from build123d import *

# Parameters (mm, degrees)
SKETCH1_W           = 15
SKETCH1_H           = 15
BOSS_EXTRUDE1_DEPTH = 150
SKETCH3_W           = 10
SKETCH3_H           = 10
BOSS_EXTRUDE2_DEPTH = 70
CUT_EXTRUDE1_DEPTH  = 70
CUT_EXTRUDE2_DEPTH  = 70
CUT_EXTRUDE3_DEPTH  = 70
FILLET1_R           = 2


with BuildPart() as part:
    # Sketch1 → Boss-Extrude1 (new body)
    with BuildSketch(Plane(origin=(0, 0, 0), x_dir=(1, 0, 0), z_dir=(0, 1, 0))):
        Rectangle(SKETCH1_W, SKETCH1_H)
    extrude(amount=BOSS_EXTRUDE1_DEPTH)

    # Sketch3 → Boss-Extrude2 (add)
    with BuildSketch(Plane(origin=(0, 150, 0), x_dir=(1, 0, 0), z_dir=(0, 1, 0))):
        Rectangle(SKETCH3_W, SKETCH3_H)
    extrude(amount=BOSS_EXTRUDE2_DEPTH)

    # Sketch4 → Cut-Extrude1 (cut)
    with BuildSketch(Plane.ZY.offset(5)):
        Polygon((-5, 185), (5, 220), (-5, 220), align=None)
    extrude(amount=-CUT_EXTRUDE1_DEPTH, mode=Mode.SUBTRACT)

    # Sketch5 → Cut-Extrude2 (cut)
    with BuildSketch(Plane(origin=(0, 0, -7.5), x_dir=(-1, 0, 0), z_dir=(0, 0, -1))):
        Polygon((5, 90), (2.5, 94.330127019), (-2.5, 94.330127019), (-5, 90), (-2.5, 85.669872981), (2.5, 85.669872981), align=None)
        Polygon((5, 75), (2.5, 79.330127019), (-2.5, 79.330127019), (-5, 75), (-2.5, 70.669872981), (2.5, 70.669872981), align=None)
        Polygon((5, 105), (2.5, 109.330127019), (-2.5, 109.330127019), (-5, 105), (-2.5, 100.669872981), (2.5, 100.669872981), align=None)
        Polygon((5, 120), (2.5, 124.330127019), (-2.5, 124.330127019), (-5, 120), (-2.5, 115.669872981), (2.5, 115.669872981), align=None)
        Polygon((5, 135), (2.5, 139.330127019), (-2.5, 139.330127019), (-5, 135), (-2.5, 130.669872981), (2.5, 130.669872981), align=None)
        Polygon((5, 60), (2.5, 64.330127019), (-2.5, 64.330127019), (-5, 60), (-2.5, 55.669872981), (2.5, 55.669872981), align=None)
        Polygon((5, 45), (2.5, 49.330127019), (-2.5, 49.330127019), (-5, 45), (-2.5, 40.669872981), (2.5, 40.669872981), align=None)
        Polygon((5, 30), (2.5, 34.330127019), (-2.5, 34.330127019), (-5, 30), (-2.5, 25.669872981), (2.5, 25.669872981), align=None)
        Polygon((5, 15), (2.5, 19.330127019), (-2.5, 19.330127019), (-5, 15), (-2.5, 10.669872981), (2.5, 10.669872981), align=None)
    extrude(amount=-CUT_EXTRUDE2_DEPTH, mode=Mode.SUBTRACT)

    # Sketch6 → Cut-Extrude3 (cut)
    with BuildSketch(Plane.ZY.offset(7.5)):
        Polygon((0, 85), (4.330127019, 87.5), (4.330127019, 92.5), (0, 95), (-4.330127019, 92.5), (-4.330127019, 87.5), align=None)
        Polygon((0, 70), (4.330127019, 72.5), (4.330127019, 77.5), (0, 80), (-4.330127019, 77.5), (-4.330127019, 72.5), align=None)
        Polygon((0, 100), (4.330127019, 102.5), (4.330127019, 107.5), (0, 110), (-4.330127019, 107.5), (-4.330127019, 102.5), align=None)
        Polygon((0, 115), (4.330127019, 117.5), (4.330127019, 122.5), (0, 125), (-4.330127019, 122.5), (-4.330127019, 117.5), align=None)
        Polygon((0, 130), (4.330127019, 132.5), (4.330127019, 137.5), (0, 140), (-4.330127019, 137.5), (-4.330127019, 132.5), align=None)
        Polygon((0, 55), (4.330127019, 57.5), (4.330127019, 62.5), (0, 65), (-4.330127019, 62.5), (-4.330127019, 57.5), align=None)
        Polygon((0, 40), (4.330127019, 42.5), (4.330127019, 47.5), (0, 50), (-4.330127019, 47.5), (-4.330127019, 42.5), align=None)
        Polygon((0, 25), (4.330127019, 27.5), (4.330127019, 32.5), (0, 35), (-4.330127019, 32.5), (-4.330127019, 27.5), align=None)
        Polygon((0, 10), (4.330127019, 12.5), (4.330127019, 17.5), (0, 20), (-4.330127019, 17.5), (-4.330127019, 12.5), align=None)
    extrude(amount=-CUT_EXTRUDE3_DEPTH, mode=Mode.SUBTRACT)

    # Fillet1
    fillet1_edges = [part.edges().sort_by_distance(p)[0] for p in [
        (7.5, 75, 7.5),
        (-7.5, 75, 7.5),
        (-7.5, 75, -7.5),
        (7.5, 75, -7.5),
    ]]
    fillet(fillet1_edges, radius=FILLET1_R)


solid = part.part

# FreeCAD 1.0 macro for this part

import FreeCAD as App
import Part
import Sketcher
from FreeCAD import Vector
Q = App.Units.Quantity


def edges_at(feature, points):
    """Names of the edges that pass closest to the given points."""
    edges = feature.Shape.Edges
    near = lambda p: min(range(len(edges)), key=lambda i: edges[i].distToShape(Part.Vertex(*p))[0])
    return sorted({f"Edge{near(p) + 1}" for p in points})

doc = App.newDocument("Part")
body = doc.addObject("PartDesign::Body", "Body")

# Sketch on XZ plane
sketch1 = body.newObject("Sketcher::SketchObject", "Sketch")
sketch1.AttachmentSupport = (doc.getObject("XZ_Plane"), [""])
sketch1.MapMode = "FlatFace"
sketch1.addGeometry([
    Part.LineSegment(Vector(-8, -8, 0), Vector(-8, 8, 0)),
    Part.LineSegment(Vector(-8, 8, 0), Vector(8, 8, 0)),
    Part.LineSegment(Vector(8, 8, 0), Vector(8, -8, 0)),
    Part.LineSegment(Vector(8, -8, 0), Vector(-8, -8, 0)),
], False)
sketch1.addConstraint([
    Sketcher.Constraint("Coincident", 0, 2, 1, 1),
    Sketcher.Constraint("Coincident", 1, 2, 2, 1),
    Sketcher.Constraint("Coincident", 2, 2, 3, 1),
    Sketcher.Constraint("Coincident", 3, 2, 0, 1),
    Sketcher.Constraint("Vertical", 0),
    Sketcher.Constraint("Horizontal", 1),
    Sketcher.Constraint("Vertical", 2),
    Sketcher.Constraint("Horizontal", 3),
    Sketcher.Constraint("Symmetric", 0, 2, 2, 2, -1, 1),
    Sketcher.Constraint("Equal", 3, 0),
    Sketcher.Constraint("DistanceX", 1, 1, 1, 2, Q("15 mm")),
])
pad1 = body.newObject("PartDesign::Pad", "Pad")
pad1.Profile = sketch1
pad1.Length = 150
pad1.Reversed = True

# Sketch on XZ plane
sketch2 = body.newObject("Sketcher::SketchObject", "Sketch001")
sketch2.AttachmentSupport = (doc.getObject("XZ_Plane"), [""])
sketch2.MapMode = "FlatFace"
sketch2.AttachmentOffset = App.Placement(Vector(0, 0, -150), App.Rotation())
sketch2.addGeometry([
    Part.LineSegment(Vector(-5, -5, 0), Vector(-5, 5, 0)),
    Part.LineSegment(Vector(-5, 5, 0), Vector(5, 5, 0)),
    Part.LineSegment(Vector(5, 5, 0), Vector(5, -5, 0)),
    Part.LineSegment(Vector(5, -5, 0), Vector(-5, -5, 0)),
], False)
sketch2.addConstraint([
    Sketcher.Constraint("Coincident", 0, 2, 1, 1),
    Sketcher.Constraint("Coincident", 1, 2, 2, 1),
    Sketcher.Constraint("Coincident", 2, 2, 3, 1),
    Sketcher.Constraint("Coincident", 3, 2, 0, 1),
    Sketcher.Constraint("Vertical", 0),
    Sketcher.Constraint("Horizontal", 1),
    Sketcher.Constraint("Vertical", 2),
    Sketcher.Constraint("Horizontal", 3),
    Sketcher.Constraint("Symmetric", 0, 2, 2, 2, -1, 1),
    Sketcher.Constraint("Equal", 3, 0),
    Sketcher.Constraint("DistanceX", 1, 1, 1, 2, Q("10 mm")),
])
pad2 = body.newObject("PartDesign::Pad", "Pad001")
pad2.Profile = sketch2
pad2.Length = 70
pad2.Reversed = True

# Sketch on YZ plane
sketch3 = body.newObject("Sketcher::SketchObject", "Sketch002")
sketch3.AttachmentSupport = (doc.getObject("YZ_Plane"), [""])
sketch3.MapMode = "FlatFace"
sketch3.AttachmentOffset = App.Placement(Vector(0, 0, -5), App.Rotation())
sketch3.addGeometry([
    Part.LineSegment(Vector(185, -5, 0), Vector(220, 5, 0)),
    Part.LineSegment(Vector(220, 5, 0), Vector(220, -5, 0)),
    Part.LineSegment(Vector(220, -5, 0), Vector(185, -5, 0)),
], False)
sketch3.addConstraint([
    Sketcher.Constraint("Coincident", 0, 2, 1, 1),
    Sketcher.Constraint("Coincident", 1, 2, 2, 1),
    Sketcher.Constraint("Coincident", 2, 2, 0, 1),
    Sketcher.Constraint("Vertical", 1),
    Sketcher.Constraint("Horizontal", 2),
    Sketcher.Constraint("DistanceX", 2, 2, 2, 1, Q("35 mm")),
    Sketcher.Constraint("DistanceY", 1, 2, 1, 1, Q("10 mm")),
    Sketcher.Constraint("DistanceX", -1, 1, 0, 2, Q("220 mm")),
    Sketcher.Constraint("DistanceY", -1, 1, 0, 2, Q("5 mm")),
])
pocket1 = body.newObject("PartDesign::Pocket", "Pocket")
pocket1.Profile = sketch3
pocket1.Length = 70
pocket1.Reversed = True

# Sketch on XY plane
sketch4 = body.newObject("Sketcher::SketchObject", "Sketch003")
sketch4.AttachmentSupport = (doc.getObject("XY_Plane"), [""])
sketch4.MapMode = "FlatFace"
sketch4.AttachmentOffset = App.Placement(Vector(0, 0, -7.5), App.Rotation())
sketch4.addGeometry([
    Part.LineSegment(Vector(-5, 90, 0), Vector(-2, 94, 0)),  # 0
    Part.LineSegment(Vector(-2, 94, 0), Vector(2, 94, 0)),  # 1
    Part.LineSegment(Vector(2, 94, 0), Vector(5, 90, 0)),  # 2
    Part.LineSegment(Vector(5, 90, 0), Vector(2, 86, 0)),  # 3
    Part.LineSegment(Vector(2, 86, 0), Vector(-2, 86, 0)),  # 4
    Part.LineSegment(Vector(-2, 86, 0), Vector(-5, 90, 0)),  # 5
    Part.LineSegment(Vector(-5, 75, 0), Vector(-2, 79, 0)),  # 6
    Part.LineSegment(Vector(-2, 79, 0), Vector(2, 79, 0)),  # 7
    Part.LineSegment(Vector(2, 79, 0), Vector(5, 75, 0)),  # 8
    Part.LineSegment(Vector(5, 75, 0), Vector(2, 71, 0)),  # 9
    Part.LineSegment(Vector(2, 71, 0), Vector(-2, 71, 0)),  # 10
    Part.LineSegment(Vector(-2, 71, 0), Vector(-5, 75, 0)),  # 11
    Part.LineSegment(Vector(-5, 105, 0), Vector(-2, 109, 0)),  # 12
    Part.LineSegment(Vector(-2, 109, 0), Vector(2, 109, 0)),  # 13
    Part.LineSegment(Vector(2, 109, 0), Vector(5, 105, 0)),  # 14
    Part.LineSegment(Vector(5, 105, 0), Vector(2, 101, 0)),  # 15
    Part.LineSegment(Vector(2, 101, 0), Vector(-2, 101, 0)),  # 16
    Part.LineSegment(Vector(-2, 101, 0), Vector(-5, 105, 0)),  # 17
    Part.LineSegment(Vector(-5, 120, 0), Vector(-2, 124, 0)),  # 18
    Part.LineSegment(Vector(-2, 124, 0), Vector(2, 124, 0)),  # 19
    Part.LineSegment(Vector(2, 124, 0), Vector(5, 120, 0)),  # 20
    Part.LineSegment(Vector(5, 120, 0), Vector(2, 116, 0)),  # 21
    Part.LineSegment(Vector(2, 116, 0), Vector(-2, 116, 0)),  # 22
    Part.LineSegment(Vector(-2, 116, 0), Vector(-5, 120, 0)),  # 23
    Part.LineSegment(Vector(-5, 135, 0), Vector(-2, 139, 0)),  # 24
    Part.LineSegment(Vector(-2, 139, 0), Vector(2, 139, 0)),  # 25
    Part.LineSegment(Vector(2, 139, 0), Vector(5, 135, 0)),  # 26
    Part.LineSegment(Vector(5, 135, 0), Vector(2, 131, 0)),  # 27
    Part.LineSegment(Vector(2, 131, 0), Vector(-2, 131, 0)),  # 28
    Part.LineSegment(Vector(-2, 131, 0), Vector(-5, 135, 0)),  # 29
    Part.LineSegment(Vector(-5, 60, 0), Vector(-2, 64, 0)),  # 30
    Part.LineSegment(Vector(-2, 64, 0), Vector(2, 64, 0)),  # 31
    Part.LineSegment(Vector(2, 64, 0), Vector(5, 60, 0)),  # 32
    Part.LineSegment(Vector(5, 60, 0), Vector(2, 56, 0)),  # 33
    Part.LineSegment(Vector(2, 56, 0), Vector(-2, 56, 0)),  # 34
    Part.LineSegment(Vector(-2, 56, 0), Vector(-5, 60, 0)),  # 35
    Part.LineSegment(Vector(-5, 45, 0), Vector(-2, 49, 0)),  # 36
    Part.LineSegment(Vector(-2, 49, 0), Vector(2, 49, 0)),  # 37
    Part.LineSegment(Vector(2, 49, 0), Vector(5, 45, 0)),  # 38
    Part.LineSegment(Vector(5, 45, 0), Vector(2, 41, 0)),  # 39
    Part.LineSegment(Vector(2, 41, 0), Vector(-2, 41, 0)),  # 40
    Part.LineSegment(Vector(-2, 41, 0), Vector(-5, 45, 0)),  # 41
    Part.LineSegment(Vector(-5, 30, 0), Vector(-2, 34, 0)),  # 42
    Part.LineSegment(Vector(-2, 34, 0), Vector(2, 34, 0)),  # 43
    Part.LineSegment(Vector(2, 34, 0), Vector(5, 30, 0)),  # 44
    Part.LineSegment(Vector(5, 30, 0), Vector(2, 26, 0)),  # 45
    Part.LineSegment(Vector(2, 26, 0), Vector(-2, 26, 0)),  # 46
    Part.LineSegment(Vector(-2, 26, 0), Vector(-5, 30, 0)),  # 47
    Part.LineSegment(Vector(-5, 15, 0), Vector(-2, 19, 0)),  # 48
    Part.LineSegment(Vector(-2, 19, 0), Vector(2, 19, 0)),  # 49
    Part.LineSegment(Vector(2, 19, 0), Vector(5, 15, 0)),  # 50
    Part.LineSegment(Vector(5, 15, 0), Vector(2, 11, 0)),  # 51
    Part.LineSegment(Vector(2, 11, 0), Vector(-2, 11, 0)),  # 52
    Part.LineSegment(Vector(-2, 11, 0), Vector(-5, 15, 0)),  # 53
], False)
sketch4.addConstraint([
    Sketcher.Constraint("Coincident", 0, 2, 1, 1),
    Sketcher.Constraint("Coincident", 1, 2, 2, 1),
    Sketcher.Constraint("Coincident", 2, 2, 3, 1),
    Sketcher.Constraint("Coincident", 3, 2, 4, 1),
    Sketcher.Constraint("Coincident", 4, 2, 5, 1),
    Sketcher.Constraint("Coincident", 5, 2, 0, 1),
    Sketcher.Constraint("Coincident", 6, 2, 7, 1),
    Sketcher.Constraint("Coincident", 7, 2, 8, 1),
    Sketcher.Constraint("Coincident", 8, 2, 9, 1),
    Sketcher.Constraint("Coincident", 9, 2, 10, 1),
    Sketcher.Constraint("Coincident", 10, 2, 11, 1),
    Sketcher.Constraint("Coincident", 11, 2, 6, 1),
    Sketcher.Constraint("Coincident", 12, 2, 13, 1),
    Sketcher.Constraint("Coincident", 13, 2, 14, 1),
    Sketcher.Constraint("Coincident", 14, 2, 15, 1),
    Sketcher.Constraint("Coincident", 15, 2, 16, 1),
    Sketcher.Constraint("Coincident", 16, 2, 17, 1),
    Sketcher.Constraint("Coincident", 17, 2, 12, 1),
    Sketcher.Constraint("Coincident", 18, 2, 19, 1),
    Sketcher.Constraint("Coincident", 19, 2, 20, 1),
    Sketcher.Constraint("Coincident", 20, 2, 21, 1),
    Sketcher.Constraint("Coincident", 21, 2, 22, 1),
    Sketcher.Constraint("Coincident", 22, 2, 23, 1),
    Sketcher.Constraint("Coincident", 23, 2, 18, 1),
    Sketcher.Constraint("Coincident", 24, 2, 25, 1),
    Sketcher.Constraint("Coincident", 25, 2, 26, 1),
    Sketcher.Constraint("Coincident", 26, 2, 27, 1),
    Sketcher.Constraint("Coincident", 27, 2, 28, 1),
    Sketcher.Constraint("Coincident", 28, 2, 29, 1),
    Sketcher.Constraint("Coincident", 29, 2, 24, 1),
    Sketcher.Constraint("Coincident", 30, 2, 31, 1),
    Sketcher.Constraint("Coincident", 31, 2, 32, 1),
    Sketcher.Constraint("Coincident", 32, 2, 33, 1),
    Sketcher.Constraint("Coincident", 33, 2, 34, 1),
    Sketcher.Constraint("Coincident", 34, 2, 35, 1),
    Sketcher.Constraint("Coincident", 35, 2, 30, 1),
    Sketcher.Constraint("Coincident", 36, 2, 37, 1),
    Sketcher.Constraint("Coincident", 37, 2, 38, 1),
    Sketcher.Constraint("Coincident", 38, 2, 39, 1),
    Sketcher.Constraint("Coincident", 39, 2, 40, 1),
    Sketcher.Constraint("Coincident", 40, 2, 41, 1),
    Sketcher.Constraint("Coincident", 41, 2, 36, 1),
    Sketcher.Constraint("Coincident", 42, 2, 43, 1),
    Sketcher.Constraint("Coincident", 43, 2, 44, 1),
    Sketcher.Constraint("Coincident", 44, 2, 45, 1),
    Sketcher.Constraint("Coincident", 45, 2, 46, 1),
    Sketcher.Constraint("Coincident", 46, 2, 47, 1),
    Sketcher.Constraint("Coincident", 47, 2, 42, 1),
    Sketcher.Constraint("Coincident", 48, 2, 49, 1),
    Sketcher.Constraint("Coincident", 49, 2, 50, 1),
    Sketcher.Constraint("Coincident", 50, 2, 51, 1),
    Sketcher.Constraint("Coincident", 51, 2, 52, 1),
    Sketcher.Constraint("Coincident", 52, 2, 53, 1),
    Sketcher.Constraint("Coincident", 53, 2, 48, 1),
    Sketcher.Constraint("Horizontal", 1),
    Sketcher.Constraint("Horizontal", 4),
    Sketcher.Constraint("Horizontal", 7),
    Sketcher.Constraint("Horizontal", 10),
    Sketcher.Constraint("Horizontal", 13),
    Sketcher.Constraint("Horizontal", 16),
    Sketcher.Constraint("Horizontal", 19),
    Sketcher.Constraint("Horizontal", 22),
    Sketcher.Constraint("Horizontal", 25),
    Sketcher.Constraint("Horizontal", 28),
    Sketcher.Constraint("Horizontal", 31),
    Sketcher.Constraint("Horizontal", 34),
    Sketcher.Constraint("Horizontal", 37),
    Sketcher.Constraint("Horizontal", 40),
    Sketcher.Constraint("Horizontal", 43),
    Sketcher.Constraint("Horizontal", 46),
    Sketcher.Constraint("Horizontal", 49),
    Sketcher.Constraint("Horizontal", 52),
    Sketcher.Constraint("Symmetric", 2, 2, 5, 2, -2),
    Sketcher.Constraint("Symmetric", 8, 2, 11, 2, -2),
    Sketcher.Constraint("Symmetric", 14, 2, 17, 2, -2),
    Sketcher.Constraint("Symmetric", 20, 2, 23, 2, -2),
    Sketcher.Constraint("Symmetric", 26, 2, 29, 2, -2),
    Sketcher.Constraint("Symmetric", 32, 2, 35, 2, -2),
    Sketcher.Constraint("Symmetric", 38, 2, 41, 2, -2),
    Sketcher.Constraint("Symmetric", 44, 2, 47, 2, -2),
    Sketcher.Constraint("Symmetric", 50, 2, 53, 2, -2),
    Sketcher.Constraint("Parallel", 0, 3),
    Sketcher.Constraint("Parallel", 2, 5),
    Sketcher.Constraint("Parallel", 3, 6),
    Sketcher.Constraint("Parallel", 5, 8),
    Sketcher.Constraint("Parallel", 6, 9),
    Sketcher.Constraint("Parallel", 8, 11),
    Sketcher.Constraint("Parallel", 9, 12),
    Sketcher.Constraint("Parallel", 11, 14),
    Sketcher.Constraint("Parallel", 12, 15),
    Sketcher.Constraint("Parallel", 14, 17),
    Sketcher.Constraint("Parallel", 15, 18),
    Sketcher.Constraint("Parallel", 17, 20),
    Sketcher.Constraint("Parallel", 18, 21),
    Sketcher.Constraint("Parallel", 20, 23),
    Sketcher.Constraint("Parallel", 21, 24),
    Sketcher.Constraint("Parallel", 23, 26),
    Sketcher.Constraint("Parallel", 24, 27),
    Sketcher.Constraint("Parallel", 26, 29),
    Sketcher.Constraint("Parallel", 27, 30),
    Sketcher.Constraint("Parallel", 29, 32),
    Sketcher.Constraint("Parallel", 30, 33),
    Sketcher.Constraint("Parallel", 32, 35),
    Sketcher.Constraint("Parallel", 33, 36),
    Sketcher.Constraint("Parallel", 35, 38),
    Sketcher.Constraint("Parallel", 36, 39),
    Sketcher.Constraint("Parallel", 38, 41),
    Sketcher.Constraint("Parallel", 39, 42),
    Sketcher.Constraint("Parallel", 41, 44),
    Sketcher.Constraint("Parallel", 42, 45),
    Sketcher.Constraint("Parallel", 44, 47),
    Sketcher.Constraint("Parallel", 45, 48),
    Sketcher.Constraint("Parallel", 47, 50),
    Sketcher.Constraint("Parallel", 48, 51),
    Sketcher.Constraint("Parallel", 50, 53),
    Sketcher.Constraint("Vertical", 1, 2, 3, 2),
    Sketcher.Constraint("Vertical", 0, 2, 4, 2),
    Sketcher.Constraint("Vertical", 4, 2, 6, 2),
    Sketcher.Constraint("Vertical", 2, 2, 8, 2),
    Sketcher.Constraint("Vertical", 7, 2, 9, 2),
    Sketcher.Constraint("Vertical", 10, 2, 12, 2),
    Sketcher.Constraint("Vertical", 8, 2, 14, 2),
    Sketcher.Constraint("Vertical", 13, 2, 15, 2),
    Sketcher.Constraint("Vertical", 16, 2, 18, 2),
    Sketcher.Constraint("Vertical", 14, 2, 20, 2),
    Sketcher.Constraint("Vertical", 19, 2, 21, 2),
    Sketcher.Constraint("Vertical", 22, 2, 24, 2),
    Sketcher.Constraint("Vertical", 20, 2, 26, 2),
    Sketcher.Constraint("Vertical", 25, 2, 27, 2),
    Sketcher.Constraint("Vertical", 28, 2, 30, 2),
    Sketcher.Constraint("Vertical", 26, 2, 32, 2),
    Sketcher.Constraint("Vertical", 31, 2, 33, 2),
    Sketcher.Constraint("Vertical", 34, 2, 36, 2),
    Sketcher.Constraint("Vertical", 32, 2, 38, 2),
    Sketcher.Constraint("Vertical", 37, 2, 39, 2),
    Sketcher.Constraint("Vertical", 40, 2, 42, 2),
    Sketcher.Constraint("Vertical", 38, 2, 44, 2),
    Sketcher.Constraint("Vertical", 43, 2, 45, 2),
    Sketcher.Constraint("Vertical", 46, 2, 48, 2),
    Sketcher.Constraint("Vertical", 44, 2, 50, 2),
    Sketcher.Constraint("Vertical", 49, 2, 51, 2),
    Sketcher.Constraint("DistanceX", 1, 1, 1, 2, Q("5 mm")),
    Sketcher.Constraint("Angle", 0, Q("60 deg")),
    Sketcher.Constraint("Distance", 0, Q("5 mm")),
    Sketcher.Constraint("DistanceY", -1, 1, 2, 2, Q("90 mm")),
    Sketcher.Constraint("DistanceY", -1, 1, 8, 2, Q("75 mm")),
    Sketcher.Constraint("DistanceY", -1, 1, 14, 2, Q("105 mm")),
    Sketcher.Constraint("DistanceY", -1, 1, 20, 2, Q("120 mm")),
    Sketcher.Constraint("DistanceY", -1, 1, 26, 2, Q("135 mm")),
    Sketcher.Constraint("DistanceY", -1, 1, 32, 2, Q("60 mm")),
    Sketcher.Constraint("DistanceY", -1, 1, 38, 2, Q("45 mm")),
    Sketcher.Constraint("DistanceY", -1, 1, 44, 2, Q("30 mm")),
    Sketcher.Constraint("DistanceY", -1, 1, 50, 2, Q("15 mm")),
])
pocket2 = body.newObject("PartDesign::Pocket", "Pocket001")
pocket2.Profile = sketch4
pocket2.Length = 70
pocket2.Reversed = True

# Sketch on YZ plane
sketch5 = body.newObject("Sketcher::SketchObject", "Sketch004")
sketch5.AttachmentSupport = (doc.getObject("YZ_Plane"), [""])
sketch5.MapMode = "FlatFace"
sketch5.AttachmentOffset = App.Placement(Vector(0, 0, -7.5), App.Rotation())
sketch5.addGeometry([
    Part.LineSegment(Vector(85, 0, 0), Vector(88, 4, 0)),  # 0
    Part.LineSegment(Vector(88, 4, 0), Vector(92, 4, 0)),  # 1
    Part.LineSegment(Vector(92, 4, 0), Vector(95, 0, 0)),  # 2
    Part.LineSegment(Vector(95, 0, 0), Vector(92, -4, 0)),  # 3
    Part.LineSegment(Vector(92, -4, 0), Vector(88, -4, 0)),  # 4
    Part.LineSegment(Vector(88, -4, 0), Vector(85, 0, 0)),  # 5
    Part.LineSegment(Vector(70, 0, 0), Vector(72, 4, 0)),  # 6
    Part.LineSegment(Vector(72, 4, 0), Vector(78, 4, 0)),  # 7
    Part.LineSegment(Vector(78, 4, 0), Vector(80, 0, 0)),  # 8
    Part.LineSegment(Vector(80, 0, 0), Vector(78, -4, 0)),  # 9
    Part.LineSegment(Vector(78, -4, 0), Vector(72, -4, 0)),  # 10
    Part.LineSegment(Vector(72, -4, 0), Vector(70, 0, 0)),  # 11
    Part.LineSegment(Vector(100, 0, 0), Vector(102, 4, 0)),  # 12
    Part.LineSegment(Vector(102, 4, 0), Vector(108, 4, 0)),  # 13
    Part.LineSegment(Vector(108, 4, 0), Vector(110, 0, 0)),  # 14
    Part.LineSegment(Vector(110, 0, 0), Vector(108, -4, 0)),  # 15
    Part.LineSegment(Vector(108, -4, 0), Vector(102, -4, 0)),  # 16
    Part.LineSegment(Vector(102, -4, 0), Vector(100, 0, 0)),  # 17
    Part.LineSegment(Vector(115, 0, 0), Vector(118, 4, 0)),  # 18
    Part.LineSegment(Vector(118, 4, 0), Vector(122, 4, 0)),  # 19
    Part.LineSegment(Vector(122, 4, 0), Vector(125, 0, 0)),  # 20
    Part.LineSegment(Vector(125, 0, 0), Vector(122, -4, 0)),  # 21
    Part.LineSegment(Vector(122, -4, 0), Vector(118, -4, 0)),  # 22
    Part.LineSegment(Vector(118, -4, 0), Vector(115, 0, 0)),  # 23
    Part.LineSegment(Vector(130, 0, 0), Vector(132, 4, 0)),  # 24
    Part.LineSegment(Vector(132, 4, 0), Vector(138, 4, 0)),  # 25
    Part.LineSegment(Vector(138, 4, 0), Vector(140, 0, 0)),  # 26
    Part.LineSegment(Vector(140, 0, 0), Vector(138, -4, 0)),  # 27
    Part.LineSegment(Vector(138, -4, 0), Vector(132, -4, 0)),  # 28
    Part.LineSegment(Vector(132, -4, 0), Vector(130, 0, 0)),  # 29
    Part.LineSegment(Vector(55, 0, 0), Vector(58, 4, 0)),  # 30
    Part.LineSegment(Vector(58, 4, 0), Vector(62, 4, 0)),  # 31
    Part.LineSegment(Vector(62, 4, 0), Vector(65, 0, 0)),  # 32
    Part.LineSegment(Vector(65, 0, 0), Vector(62, -4, 0)),  # 33
    Part.LineSegment(Vector(62, -4, 0), Vector(58, -4, 0)),  # 34
    Part.LineSegment(Vector(58, -4, 0), Vector(55, 0, 0)),  # 35
    Part.LineSegment(Vector(40, 0, 0), Vector(42, 4, 0)),  # 36
    Part.LineSegment(Vector(42, 4, 0), Vector(48, 4, 0)),  # 37
    Part.LineSegment(Vector(48, 4, 0), Vector(50, 0, 0)),  # 38
    Part.LineSegment(Vector(50, 0, 0), Vector(48, -4, 0)),  # 39
    Part.LineSegment(Vector(48, -4, 0), Vector(42, -4, 0)),  # 40
    Part.LineSegment(Vector(42, -4, 0), Vector(40, 0, 0)),  # 41
    Part.LineSegment(Vector(25, 0, 0), Vector(28, 4, 0)),  # 42
    Part.LineSegment(Vector(28, 4, 0), Vector(32, 4, 0)),  # 43
    Part.LineSegment(Vector(32, 4, 0), Vector(35, 0, 0)),  # 44
    Part.LineSegment(Vector(35, 0, 0), Vector(32, -4, 0)),  # 45
    Part.LineSegment(Vector(32, -4, 0), Vector(28, -4, 0)),  # 46
    Part.LineSegment(Vector(28, -4, 0), Vector(25, 0, 0)),  # 47
    Part.LineSegment(Vector(10, 0, 0), Vector(12, 4, 0)),  # 48
    Part.LineSegment(Vector(12, 4, 0), Vector(18, 4, 0)),  # 49
    Part.LineSegment(Vector(18, 4, 0), Vector(20, 0, 0)),  # 50
    Part.LineSegment(Vector(20, 0, 0), Vector(18, -4, 0)),  # 51
    Part.LineSegment(Vector(18, -4, 0), Vector(12, -4, 0)),  # 52
    Part.LineSegment(Vector(12, -4, 0), Vector(10, 0, 0)),  # 53
], False)
sketch5.addConstraint([
    Sketcher.Constraint("Coincident", 0, 2, 1, 1),
    Sketcher.Constraint("Coincident", 1, 2, 2, 1),
    Sketcher.Constraint("Coincident", 2, 2, 3, 1),
    Sketcher.Constraint("Coincident", 3, 2, 4, 1),
    Sketcher.Constraint("Coincident", 4, 2, 5, 1),
    Sketcher.Constraint("Coincident", 5, 2, 0, 1),
    Sketcher.Constraint("Coincident", 6, 2, 7, 1),
    Sketcher.Constraint("Coincident", 7, 2, 8, 1),
    Sketcher.Constraint("Coincident", 8, 2, 9, 1),
    Sketcher.Constraint("Coincident", 9, 2, 10, 1),
    Sketcher.Constraint("Coincident", 10, 2, 11, 1),
    Sketcher.Constraint("Coincident", 11, 2, 6, 1),
    Sketcher.Constraint("Coincident", 12, 2, 13, 1),
    Sketcher.Constraint("Coincident", 13, 2, 14, 1),
    Sketcher.Constraint("Coincident", 14, 2, 15, 1),
    Sketcher.Constraint("Coincident", 15, 2, 16, 1),
    Sketcher.Constraint("Coincident", 16, 2, 17, 1),
    Sketcher.Constraint("Coincident", 17, 2, 12, 1),
    Sketcher.Constraint("Coincident", 18, 2, 19, 1),
    Sketcher.Constraint("Coincident", 19, 2, 20, 1),
    Sketcher.Constraint("Coincident", 20, 2, 21, 1),
    Sketcher.Constraint("Coincident", 21, 2, 22, 1),
    Sketcher.Constraint("Coincident", 22, 2, 23, 1),
    Sketcher.Constraint("Coincident", 23, 2, 18, 1),
    Sketcher.Constraint("Coincident", 24, 2, 25, 1),
    Sketcher.Constraint("Coincident", 25, 2, 26, 1),
    Sketcher.Constraint("Coincident", 26, 2, 27, 1),
    Sketcher.Constraint("Coincident", 27, 2, 28, 1),
    Sketcher.Constraint("Coincident", 28, 2, 29, 1),
    Sketcher.Constraint("Coincident", 29, 2, 24, 1),
    Sketcher.Constraint("Coincident", 30, 2, 31, 1),
    Sketcher.Constraint("Coincident", 31, 2, 32, 1),
    Sketcher.Constraint("Coincident", 32, 2, 33, 1),
    Sketcher.Constraint("Coincident", 33, 2, 34, 1),
    Sketcher.Constraint("Coincident", 34, 2, 35, 1),
    Sketcher.Constraint("Coincident", 35, 2, 30, 1),
    Sketcher.Constraint("Coincident", 36, 2, 37, 1),
    Sketcher.Constraint("Coincident", 37, 2, 38, 1),
    Sketcher.Constraint("Coincident", 38, 2, 39, 1),
    Sketcher.Constraint("Coincident", 39, 2, 40, 1),
    Sketcher.Constraint("Coincident", 40, 2, 41, 1),
    Sketcher.Constraint("Coincident", 41, 2, 36, 1),
    Sketcher.Constraint("Coincident", 42, 2, 43, 1),
    Sketcher.Constraint("Coincident", 43, 2, 44, 1),
    Sketcher.Constraint("Coincident", 44, 2, 45, 1),
    Sketcher.Constraint("Coincident", 45, 2, 46, 1),
    Sketcher.Constraint("Coincident", 46, 2, 47, 1),
    Sketcher.Constraint("Coincident", 47, 2, 42, 1),
    Sketcher.Constraint("Coincident", 48, 2, 49, 1),
    Sketcher.Constraint("Coincident", 49, 2, 50, 1),
    Sketcher.Constraint("Coincident", 50, 2, 51, 1),
    Sketcher.Constraint("Coincident", 51, 2, 52, 1),
    Sketcher.Constraint("Coincident", 52, 2, 53, 1),
    Sketcher.Constraint("Coincident", 53, 2, 48, 1),
    Sketcher.Constraint("Horizontal", 1),
    Sketcher.Constraint("Horizontal", 4),
    Sketcher.Constraint("Horizontal", 7),
    Sketcher.Constraint("Horizontal", 10),
    Sketcher.Constraint("Horizontal", 13),
    Sketcher.Constraint("Horizontal", 16),
    Sketcher.Constraint("Horizontal", 19),
    Sketcher.Constraint("Horizontal", 22),
    Sketcher.Constraint("Horizontal", 25),
    Sketcher.Constraint("Horizontal", 28),
    Sketcher.Constraint("Horizontal", 31),
    Sketcher.Constraint("Horizontal", 34),
    Sketcher.Constraint("Horizontal", 37),
    Sketcher.Constraint("Horizontal", 40),
    Sketcher.Constraint("Horizontal", 43),
    Sketcher.Constraint("Horizontal", 46),
    Sketcher.Constraint("Horizontal", 49),
    Sketcher.Constraint("Horizontal", 52),
    Sketcher.Constraint("Symmetric", 1, 2, 3, 2, -1),
    Sketcher.Constraint("Symmetric", 7, 2, 9, 2, -1),
    Sketcher.Constraint("Symmetric", 13, 2, 15, 2, -1),
    Sketcher.Constraint("Symmetric", 19, 2, 21, 2, -1),
    Sketcher.Constraint("Symmetric", 25, 2, 27, 2, -1),
    Sketcher.Constraint("Symmetric", 31, 2, 33, 2, -1),
    Sketcher.Constraint("Symmetric", 37, 2, 39, 2, -1),
    Sketcher.Constraint("Symmetric", 43, 2, 45, 2, -1),
    Sketcher.Constraint("Symmetric", 49, 2, 51, 2, -1),
    Sketcher.Constraint("PointOnObject", 2, 2, -1),
    Sketcher.Constraint("PointOnObject", 5, 2, -1),
    Sketcher.Constraint("PointOnObject", 8, 2, -1),
    Sketcher.Constraint("PointOnObject", 11, 2, -1),
    Sketcher.Constraint("PointOnObject", 14, 2, -1),
    Sketcher.Constraint("PointOnObject", 17, 2, -1),
    Sketcher.Constraint("PointOnObject", 20, 2, -1),
    Sketcher.Constraint("PointOnObject", 23, 2, -1),
    Sketcher.Constraint("PointOnObject", 26, 2, -1),
    Sketcher.Constraint("PointOnObject", 29, 2, -1),
    Sketcher.Constraint("PointOnObject", 32, 2, -1),
    Sketcher.Constraint("PointOnObject", 35, 2, -1),
    Sketcher.Constraint("PointOnObject", 38, 2, -1),
    Sketcher.Constraint("PointOnObject", 41, 2, -1),
    Sketcher.Constraint("PointOnObject", 44, 2, -1),
    Sketcher.Constraint("PointOnObject", 47, 2, -1),
    Sketcher.Constraint("PointOnObject", 50, 2, -1),
    Sketcher.Constraint("PointOnObject", 53, 2, -1),
    Sketcher.Constraint("Parallel", 0, 3),
    Sketcher.Constraint("Parallel", 2, 5),
    Sketcher.Constraint("Parallel", 3, 6),
    Sketcher.Constraint("Parallel", 5, 8),
    Sketcher.Constraint("Parallel", 8, 11),
    Sketcher.Constraint("Parallel", 9, 12),
    Sketcher.Constraint("Parallel", 11, 14),
    Sketcher.Constraint("Parallel", 14, 17),
    Sketcher.Constraint("Parallel", 15, 18),
    Sketcher.Constraint("Parallel", 17, 20),
    Sketcher.Constraint("Parallel", 20, 23),
    Sketcher.Constraint("Parallel", 21, 24),
    Sketcher.Constraint("Parallel", 23, 26),
    Sketcher.Constraint("Parallel", 26, 29),
    Sketcher.Constraint("Parallel", 27, 30),
    Sketcher.Constraint("Parallel", 29, 32),
    Sketcher.Constraint("Parallel", 32, 35),
    Sketcher.Constraint("Parallel", 33, 36),
    Sketcher.Constraint("Parallel", 35, 38),
    Sketcher.Constraint("Parallel", 38, 41),
    Sketcher.Constraint("Parallel", 39, 42),
    Sketcher.Constraint("Parallel", 41, 44),
    Sketcher.Constraint("Parallel", 44, 47),
    Sketcher.Constraint("Parallel", 45, 48),
    Sketcher.Constraint("Parallel", 47, 50),
    Sketcher.Constraint("Parallel", 50, 53),
    Sketcher.Constraint("Horizontal", 1, 2, 6, 2),
    Sketcher.Constraint("Horizontal", 7, 2, 12, 2),
    Sketcher.Constraint("Horizontal", 13, 2, 18, 2),
    Sketcher.Constraint("Horizontal", 19, 2, 24, 2),
    Sketcher.Constraint("Horizontal", 25, 2, 30, 2),
    Sketcher.Constraint("Horizontal", 31, 2, 36, 2),
    Sketcher.Constraint("Horizontal", 37, 2, 42, 2),
    Sketcher.Constraint("Horizontal", 43, 2, 48, 2),
    Sketcher.Constraint("Equal", 4, 7),
    Sketcher.Constraint("Equal", 10, 13),
    Sketcher.Constraint("Equal", 16, 19),
    Sketcher.Constraint("Equal", 22, 25),
    Sketcher.Constraint("Equal", 28, 31),
    Sketcher.Constraint("Equal", 34, 37),
    Sketcher.Constraint("Equal", 40, 43),
    Sketcher.Constraint("Equal", 46, 49),
    Sketcher.Constraint("DistanceX", 1, 1, 1, 2, Q("5 mm")),
    Sketcher.Constraint("Angle", 0, Q("60 deg")),
    Sketcher.Constraint("Distance", 0, Q("5 mm")),
    Sketcher.Constraint("DistanceX", -1, 1, 2, 2, Q("95 mm")),
    Sketcher.Constraint("DistanceX", -1, 1, 8, 2, Q("80 mm")),
    Sketcher.Constraint("DistanceX", -1, 1, 14, 2, Q("110 mm")),
    Sketcher.Constraint("DistanceX", -1, 1, 20, 2, Q("125 mm")),
    Sketcher.Constraint("DistanceX", -1, 1, 26, 2, Q("140 mm")),
    Sketcher.Constraint("DistanceX", -1, 1, 32, 2, Q("65 mm")),
    Sketcher.Constraint("DistanceX", -1, 1, 38, 2, Q("50 mm")),
    Sketcher.Constraint("DistanceX", -1, 1, 44, 2, Q("35 mm")),
    Sketcher.Constraint("DistanceX", -1, 1, 50, 2, Q("20 mm")),
])
pocket3 = body.newObject("PartDesign::Pocket", "Pocket002")
pocket3.Profile = sketch5
pocket3.Length = 70
pocket3.Reversed = True
doc.recompute()

fillet = body.newObject("PartDesign::Fillet", "Fillet")
fillet.Base = (pocket3, edges_at(pocket3, [
    (7.5, 75, 7.5),
    (-7.5, 75, 7.5),
    (-7.5, 75, -7.5),
    (7.5, 75, -7.5),
]))
fillet.Radius = 2

doc.recompute()
